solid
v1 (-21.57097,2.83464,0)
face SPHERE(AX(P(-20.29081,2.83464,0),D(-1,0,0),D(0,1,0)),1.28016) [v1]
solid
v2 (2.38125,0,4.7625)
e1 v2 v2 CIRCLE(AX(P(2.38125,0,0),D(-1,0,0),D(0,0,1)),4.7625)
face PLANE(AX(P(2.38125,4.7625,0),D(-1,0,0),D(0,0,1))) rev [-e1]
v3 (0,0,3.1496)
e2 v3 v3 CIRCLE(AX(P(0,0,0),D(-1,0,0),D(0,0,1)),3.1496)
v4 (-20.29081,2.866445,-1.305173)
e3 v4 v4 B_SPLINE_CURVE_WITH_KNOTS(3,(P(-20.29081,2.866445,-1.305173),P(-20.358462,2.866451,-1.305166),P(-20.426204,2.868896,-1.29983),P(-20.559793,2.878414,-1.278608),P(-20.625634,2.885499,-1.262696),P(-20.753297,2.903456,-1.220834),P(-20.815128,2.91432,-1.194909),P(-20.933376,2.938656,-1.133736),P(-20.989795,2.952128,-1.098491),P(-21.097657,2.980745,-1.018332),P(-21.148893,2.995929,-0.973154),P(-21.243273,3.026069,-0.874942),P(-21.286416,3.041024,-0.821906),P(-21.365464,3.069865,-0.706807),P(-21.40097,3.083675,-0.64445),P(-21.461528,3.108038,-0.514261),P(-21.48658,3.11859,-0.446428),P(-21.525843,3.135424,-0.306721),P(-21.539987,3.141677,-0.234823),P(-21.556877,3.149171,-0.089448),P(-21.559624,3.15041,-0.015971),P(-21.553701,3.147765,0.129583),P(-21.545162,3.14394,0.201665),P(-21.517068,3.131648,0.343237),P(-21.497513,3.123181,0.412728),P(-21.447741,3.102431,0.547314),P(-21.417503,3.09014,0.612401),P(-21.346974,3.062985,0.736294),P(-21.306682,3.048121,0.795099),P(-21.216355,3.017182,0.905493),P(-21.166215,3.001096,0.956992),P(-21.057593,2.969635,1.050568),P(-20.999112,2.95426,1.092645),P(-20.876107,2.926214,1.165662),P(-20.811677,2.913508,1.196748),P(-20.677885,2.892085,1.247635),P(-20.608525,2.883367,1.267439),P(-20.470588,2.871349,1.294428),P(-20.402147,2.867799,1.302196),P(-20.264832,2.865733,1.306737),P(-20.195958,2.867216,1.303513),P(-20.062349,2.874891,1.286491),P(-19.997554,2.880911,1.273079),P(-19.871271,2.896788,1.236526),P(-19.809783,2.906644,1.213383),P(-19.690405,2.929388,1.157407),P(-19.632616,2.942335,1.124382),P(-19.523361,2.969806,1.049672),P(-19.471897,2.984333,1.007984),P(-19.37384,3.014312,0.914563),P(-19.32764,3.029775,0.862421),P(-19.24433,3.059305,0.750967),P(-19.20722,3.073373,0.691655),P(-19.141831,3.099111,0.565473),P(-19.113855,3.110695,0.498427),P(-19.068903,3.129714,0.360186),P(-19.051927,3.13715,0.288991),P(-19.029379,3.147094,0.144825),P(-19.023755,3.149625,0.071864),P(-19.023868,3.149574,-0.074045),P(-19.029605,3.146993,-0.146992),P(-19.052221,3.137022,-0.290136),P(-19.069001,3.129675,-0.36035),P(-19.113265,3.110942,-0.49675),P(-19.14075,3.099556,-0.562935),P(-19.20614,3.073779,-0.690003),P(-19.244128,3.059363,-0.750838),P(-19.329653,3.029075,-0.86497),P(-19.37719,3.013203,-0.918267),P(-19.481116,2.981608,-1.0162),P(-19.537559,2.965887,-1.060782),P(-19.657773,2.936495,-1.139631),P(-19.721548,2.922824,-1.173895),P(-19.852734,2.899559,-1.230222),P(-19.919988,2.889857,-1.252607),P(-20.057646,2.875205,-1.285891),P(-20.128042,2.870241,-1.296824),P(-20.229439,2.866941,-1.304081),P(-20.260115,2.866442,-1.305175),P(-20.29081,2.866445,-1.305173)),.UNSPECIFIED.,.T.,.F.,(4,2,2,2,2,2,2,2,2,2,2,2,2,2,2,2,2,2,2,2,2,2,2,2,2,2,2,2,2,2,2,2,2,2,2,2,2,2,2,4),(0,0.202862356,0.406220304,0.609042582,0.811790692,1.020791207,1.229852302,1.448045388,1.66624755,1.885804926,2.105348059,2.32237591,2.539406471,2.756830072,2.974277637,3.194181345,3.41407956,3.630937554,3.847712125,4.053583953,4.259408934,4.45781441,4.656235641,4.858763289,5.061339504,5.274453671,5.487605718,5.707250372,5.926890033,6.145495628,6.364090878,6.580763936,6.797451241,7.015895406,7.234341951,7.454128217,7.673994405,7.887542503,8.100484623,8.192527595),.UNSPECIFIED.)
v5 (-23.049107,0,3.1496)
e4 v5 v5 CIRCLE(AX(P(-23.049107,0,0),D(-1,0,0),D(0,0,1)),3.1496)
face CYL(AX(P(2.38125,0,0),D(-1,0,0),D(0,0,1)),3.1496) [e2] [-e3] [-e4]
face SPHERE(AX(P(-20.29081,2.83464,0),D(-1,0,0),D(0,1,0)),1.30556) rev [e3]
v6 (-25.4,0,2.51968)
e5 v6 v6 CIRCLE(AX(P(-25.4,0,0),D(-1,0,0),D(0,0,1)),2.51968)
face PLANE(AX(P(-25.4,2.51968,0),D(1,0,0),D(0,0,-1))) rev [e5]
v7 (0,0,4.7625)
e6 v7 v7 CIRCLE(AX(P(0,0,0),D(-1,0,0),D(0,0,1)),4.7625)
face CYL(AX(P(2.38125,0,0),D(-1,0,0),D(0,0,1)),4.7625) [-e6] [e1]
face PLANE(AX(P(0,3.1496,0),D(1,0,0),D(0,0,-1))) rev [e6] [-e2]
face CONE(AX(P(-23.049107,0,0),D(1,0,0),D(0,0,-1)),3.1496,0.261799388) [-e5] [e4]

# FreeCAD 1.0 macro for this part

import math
import FreeCAD as App
import Part
import Sketcher
Q = App.Units.Quantity

doc = App.newDocument("Part")
body = doc.addObject("PartDesign::Body", "Body")

# Sketch on XY plane
sketch1 = body.newObject("Sketcher::SketchObject", "Sketch")
sketch1.AttachmentSupport = (doc.getObject("XY_Plane"), [""])
sketch1.MapMode = "FlatFace"
sketch1.addGeometry([
    Part.LineSegment(App.Vector(2.4, 4.8, 0), App.Vector(0, 4.8, 0)),  # 0
    Part.LineSegment(App.Vector(0, 4.8, 0), App.Vector(0, 3.1, 0)),  # 1
    Part.LineSegment(App.Vector(0, 3.1, 0), App.Vector(-23, 3.1, 0)),  # 2
    Part.LineSegment(App.Vector(-23, 3.1, 0), App.Vector(-25.4, 2.5, 0)),  # 3
    Part.LineSegment(App.Vector(-25.4, 2.5, 0), App.Vector(-25.4, 0, 0)),  # 4
    Part.LineSegment(App.Vector(-25.4, 0, 0), App.Vector(2.4, 0, 0)),  # 5
    Part.LineSegment(App.Vector(2.4, 0, 0), App.Vector(2.4, 4.8, 0)),  # 6
], False)
sketch1.addConstraint([
    Sketcher.Constraint("Coincident", 0, 2, 1, 1),
    Sketcher.Constraint("Coincident", 1, 2, 2, 1),
    Sketcher.Constraint("Coincident", 2, 2, 3, 1),
    Sketcher.Constraint("Coincident", 3, 2, 4, 1),
    Sketcher.Constraint("Coincident", 4, 2, 5, 1),
    Sketcher.Constraint("Coincident", 5, 2, 6, 1),
    Sketcher.Constraint("Coincident", 6, 2, 0, 1),
    Sketcher.Constraint("Horizontal", 0),
    Sketcher.Constraint("Vertical", 1),
    Sketcher.Constraint("Horizontal", 2),
    Sketcher.Constraint("Vertical", 4),
    Sketcher.Constraint("Horizontal", 5),
    Sketcher.Constraint("Vertical", 6),
    Sketcher.Constraint("PointOnObject", 0, 2, -2),
    Sketcher.Constraint("PointOnObject", 4, 2, -1),
    Sketcher.Constraint("DistanceX", 3, 2, -1, 1, Q("1 in")),
    Sketcher.Constraint("Angle", 3, Q("-165 deg")),
    Sketcher.Constraint("DistanceX", 0, 2, 0, 1, Q("0.09375 in")),
    Sketcher.Constraint("DistanceY", 6, 1, 6, 2, Q("0.1875 in")),
    Sketcher.Constraint("DistanceY", 1, 2, 1, 1, Q("0.0635 in")),
    Sketcher.Constraint("DistanceY", 4, 2, 4, 1, Q("0.0992 in")),
])
revolution = body.newObject("PartDesign::Revolution", "Revolution")
revolution.Profile = sketch1
revolution.ReferenceAxis = (sketch1, ["H_Axis"])
revolution.Angle = 360

# Sketch on XY plane
sketch2 = body.newObject("Sketcher::SketchObject", "Sketch001")
sketch2.AttachmentSupport = (doc.getObject("XY_Plane"), [""])
sketch2.MapMode = "FlatFace"
sketch2.addGeometry([
    Part.LineSegment(App.Vector(-21.6, 2.8, 0), App.Vector(-19, 2.8, 0)),
    Part.ArcOfCircle(Part.Circle(App.Vector(-20.3, 2.8, 0), App.Vector(0, 0, 1), 1.3), math.radians(0), math.radians(180)),
], False)
sketch2.addGeometry(Part.LineSegment(App.Vector(-21.6, 2.8, 0), App.Vector(-19, 2.8, 0)), True)  # axis
sketch2.addConstraint([
    Sketcher.Constraint("Coincident", 0, 1, 1, 2),
    Sketcher.Constraint("Coincident", 1, 1, 0, 2),
    Sketcher.Constraint("Horizontal", 0),
    Sketcher.Constraint("Horizontal", 2),
    Sketcher.Constraint("Coincident", 2, 1, 0, 1),
    Sketcher.Constraint("Horizontal", 1, 3, 0, 1),
    Sketcher.Constraint("Equal", 0, 2),
    Sketcher.Constraint("Radius", 1, Q("0.0514 in")),
    Sketcher.Constraint("DistanceY", -1, 1, 1, 3, Q("0.1116 in")),
    Sketcher.Constraint("DistanceX", 1, 3, -1, 1, 20.29081),
])
groove = body.newObject("PartDesign::Groove", "Groove")
groove.Profile = sketch2
groove.ReferenceAxis = (sketch2, ["Axis0"])
groove.Angle = 360
body2 = doc.addObject("PartDesign::Body", "Body001")

# Sketch on XY plane
sketch3 = body2.newObject("Sketcher::SketchObject", "Sketch002")
sketch3.AttachmentSupport = (doc.getObject("XY_Plane001"), [""])
sketch3.MapMode = "FlatFace"
sketch3.addGeometry([
    Part.LineSegment(App.Vector(-21.6, 2.8, 0), App.Vector(-19, 2.8, 0)),
    Part.ArcOfCircle(Part.Circle(App.Vector(-20.3, 2.8, 0), App.Vector(0, 0, 1), 1.3), math.radians(0), math.radians(180)),
], False)
sketch3.addGeometry(Part.LineSegment(App.Vector(-21.6, 2.8, 0), App.Vector(-19, 2.8, 0)), True)  # axis
sketch3.addConstraint([
    Sketcher.Constraint("Coincident", 0, 1, 1, 2),
    Sketcher.Constraint("Coincident", 1, 1, 0, 2),
    Sketcher.Constraint("Horizontal", 0),
    Sketcher.Constraint("Horizontal", 2),
    Sketcher.Constraint("Coincident", 2, 1, 0, 1),
    Sketcher.Constraint("Horizontal", 1, 3, 0, 1),
    Sketcher.Constraint("Equal", 0, 2),
    Sketcher.Constraint("Radius", 1, Q("0.0504 in")),
    Sketcher.Constraint("DistanceY", -1, 1, 1, 3, Q("0.1116 in")),
    Sketcher.Constraint("DistanceX", 1, 3, -1, 1, 20.29081),
])
revolution2 = body2.newObject("PartDesign::Revolution", "Revolution001")
revolution2.Profile = sketch3
revolution2.ReferenceAxis = (sketch3, ["Axis0"])
revolution2.Angle = 360

doc.recompute()
